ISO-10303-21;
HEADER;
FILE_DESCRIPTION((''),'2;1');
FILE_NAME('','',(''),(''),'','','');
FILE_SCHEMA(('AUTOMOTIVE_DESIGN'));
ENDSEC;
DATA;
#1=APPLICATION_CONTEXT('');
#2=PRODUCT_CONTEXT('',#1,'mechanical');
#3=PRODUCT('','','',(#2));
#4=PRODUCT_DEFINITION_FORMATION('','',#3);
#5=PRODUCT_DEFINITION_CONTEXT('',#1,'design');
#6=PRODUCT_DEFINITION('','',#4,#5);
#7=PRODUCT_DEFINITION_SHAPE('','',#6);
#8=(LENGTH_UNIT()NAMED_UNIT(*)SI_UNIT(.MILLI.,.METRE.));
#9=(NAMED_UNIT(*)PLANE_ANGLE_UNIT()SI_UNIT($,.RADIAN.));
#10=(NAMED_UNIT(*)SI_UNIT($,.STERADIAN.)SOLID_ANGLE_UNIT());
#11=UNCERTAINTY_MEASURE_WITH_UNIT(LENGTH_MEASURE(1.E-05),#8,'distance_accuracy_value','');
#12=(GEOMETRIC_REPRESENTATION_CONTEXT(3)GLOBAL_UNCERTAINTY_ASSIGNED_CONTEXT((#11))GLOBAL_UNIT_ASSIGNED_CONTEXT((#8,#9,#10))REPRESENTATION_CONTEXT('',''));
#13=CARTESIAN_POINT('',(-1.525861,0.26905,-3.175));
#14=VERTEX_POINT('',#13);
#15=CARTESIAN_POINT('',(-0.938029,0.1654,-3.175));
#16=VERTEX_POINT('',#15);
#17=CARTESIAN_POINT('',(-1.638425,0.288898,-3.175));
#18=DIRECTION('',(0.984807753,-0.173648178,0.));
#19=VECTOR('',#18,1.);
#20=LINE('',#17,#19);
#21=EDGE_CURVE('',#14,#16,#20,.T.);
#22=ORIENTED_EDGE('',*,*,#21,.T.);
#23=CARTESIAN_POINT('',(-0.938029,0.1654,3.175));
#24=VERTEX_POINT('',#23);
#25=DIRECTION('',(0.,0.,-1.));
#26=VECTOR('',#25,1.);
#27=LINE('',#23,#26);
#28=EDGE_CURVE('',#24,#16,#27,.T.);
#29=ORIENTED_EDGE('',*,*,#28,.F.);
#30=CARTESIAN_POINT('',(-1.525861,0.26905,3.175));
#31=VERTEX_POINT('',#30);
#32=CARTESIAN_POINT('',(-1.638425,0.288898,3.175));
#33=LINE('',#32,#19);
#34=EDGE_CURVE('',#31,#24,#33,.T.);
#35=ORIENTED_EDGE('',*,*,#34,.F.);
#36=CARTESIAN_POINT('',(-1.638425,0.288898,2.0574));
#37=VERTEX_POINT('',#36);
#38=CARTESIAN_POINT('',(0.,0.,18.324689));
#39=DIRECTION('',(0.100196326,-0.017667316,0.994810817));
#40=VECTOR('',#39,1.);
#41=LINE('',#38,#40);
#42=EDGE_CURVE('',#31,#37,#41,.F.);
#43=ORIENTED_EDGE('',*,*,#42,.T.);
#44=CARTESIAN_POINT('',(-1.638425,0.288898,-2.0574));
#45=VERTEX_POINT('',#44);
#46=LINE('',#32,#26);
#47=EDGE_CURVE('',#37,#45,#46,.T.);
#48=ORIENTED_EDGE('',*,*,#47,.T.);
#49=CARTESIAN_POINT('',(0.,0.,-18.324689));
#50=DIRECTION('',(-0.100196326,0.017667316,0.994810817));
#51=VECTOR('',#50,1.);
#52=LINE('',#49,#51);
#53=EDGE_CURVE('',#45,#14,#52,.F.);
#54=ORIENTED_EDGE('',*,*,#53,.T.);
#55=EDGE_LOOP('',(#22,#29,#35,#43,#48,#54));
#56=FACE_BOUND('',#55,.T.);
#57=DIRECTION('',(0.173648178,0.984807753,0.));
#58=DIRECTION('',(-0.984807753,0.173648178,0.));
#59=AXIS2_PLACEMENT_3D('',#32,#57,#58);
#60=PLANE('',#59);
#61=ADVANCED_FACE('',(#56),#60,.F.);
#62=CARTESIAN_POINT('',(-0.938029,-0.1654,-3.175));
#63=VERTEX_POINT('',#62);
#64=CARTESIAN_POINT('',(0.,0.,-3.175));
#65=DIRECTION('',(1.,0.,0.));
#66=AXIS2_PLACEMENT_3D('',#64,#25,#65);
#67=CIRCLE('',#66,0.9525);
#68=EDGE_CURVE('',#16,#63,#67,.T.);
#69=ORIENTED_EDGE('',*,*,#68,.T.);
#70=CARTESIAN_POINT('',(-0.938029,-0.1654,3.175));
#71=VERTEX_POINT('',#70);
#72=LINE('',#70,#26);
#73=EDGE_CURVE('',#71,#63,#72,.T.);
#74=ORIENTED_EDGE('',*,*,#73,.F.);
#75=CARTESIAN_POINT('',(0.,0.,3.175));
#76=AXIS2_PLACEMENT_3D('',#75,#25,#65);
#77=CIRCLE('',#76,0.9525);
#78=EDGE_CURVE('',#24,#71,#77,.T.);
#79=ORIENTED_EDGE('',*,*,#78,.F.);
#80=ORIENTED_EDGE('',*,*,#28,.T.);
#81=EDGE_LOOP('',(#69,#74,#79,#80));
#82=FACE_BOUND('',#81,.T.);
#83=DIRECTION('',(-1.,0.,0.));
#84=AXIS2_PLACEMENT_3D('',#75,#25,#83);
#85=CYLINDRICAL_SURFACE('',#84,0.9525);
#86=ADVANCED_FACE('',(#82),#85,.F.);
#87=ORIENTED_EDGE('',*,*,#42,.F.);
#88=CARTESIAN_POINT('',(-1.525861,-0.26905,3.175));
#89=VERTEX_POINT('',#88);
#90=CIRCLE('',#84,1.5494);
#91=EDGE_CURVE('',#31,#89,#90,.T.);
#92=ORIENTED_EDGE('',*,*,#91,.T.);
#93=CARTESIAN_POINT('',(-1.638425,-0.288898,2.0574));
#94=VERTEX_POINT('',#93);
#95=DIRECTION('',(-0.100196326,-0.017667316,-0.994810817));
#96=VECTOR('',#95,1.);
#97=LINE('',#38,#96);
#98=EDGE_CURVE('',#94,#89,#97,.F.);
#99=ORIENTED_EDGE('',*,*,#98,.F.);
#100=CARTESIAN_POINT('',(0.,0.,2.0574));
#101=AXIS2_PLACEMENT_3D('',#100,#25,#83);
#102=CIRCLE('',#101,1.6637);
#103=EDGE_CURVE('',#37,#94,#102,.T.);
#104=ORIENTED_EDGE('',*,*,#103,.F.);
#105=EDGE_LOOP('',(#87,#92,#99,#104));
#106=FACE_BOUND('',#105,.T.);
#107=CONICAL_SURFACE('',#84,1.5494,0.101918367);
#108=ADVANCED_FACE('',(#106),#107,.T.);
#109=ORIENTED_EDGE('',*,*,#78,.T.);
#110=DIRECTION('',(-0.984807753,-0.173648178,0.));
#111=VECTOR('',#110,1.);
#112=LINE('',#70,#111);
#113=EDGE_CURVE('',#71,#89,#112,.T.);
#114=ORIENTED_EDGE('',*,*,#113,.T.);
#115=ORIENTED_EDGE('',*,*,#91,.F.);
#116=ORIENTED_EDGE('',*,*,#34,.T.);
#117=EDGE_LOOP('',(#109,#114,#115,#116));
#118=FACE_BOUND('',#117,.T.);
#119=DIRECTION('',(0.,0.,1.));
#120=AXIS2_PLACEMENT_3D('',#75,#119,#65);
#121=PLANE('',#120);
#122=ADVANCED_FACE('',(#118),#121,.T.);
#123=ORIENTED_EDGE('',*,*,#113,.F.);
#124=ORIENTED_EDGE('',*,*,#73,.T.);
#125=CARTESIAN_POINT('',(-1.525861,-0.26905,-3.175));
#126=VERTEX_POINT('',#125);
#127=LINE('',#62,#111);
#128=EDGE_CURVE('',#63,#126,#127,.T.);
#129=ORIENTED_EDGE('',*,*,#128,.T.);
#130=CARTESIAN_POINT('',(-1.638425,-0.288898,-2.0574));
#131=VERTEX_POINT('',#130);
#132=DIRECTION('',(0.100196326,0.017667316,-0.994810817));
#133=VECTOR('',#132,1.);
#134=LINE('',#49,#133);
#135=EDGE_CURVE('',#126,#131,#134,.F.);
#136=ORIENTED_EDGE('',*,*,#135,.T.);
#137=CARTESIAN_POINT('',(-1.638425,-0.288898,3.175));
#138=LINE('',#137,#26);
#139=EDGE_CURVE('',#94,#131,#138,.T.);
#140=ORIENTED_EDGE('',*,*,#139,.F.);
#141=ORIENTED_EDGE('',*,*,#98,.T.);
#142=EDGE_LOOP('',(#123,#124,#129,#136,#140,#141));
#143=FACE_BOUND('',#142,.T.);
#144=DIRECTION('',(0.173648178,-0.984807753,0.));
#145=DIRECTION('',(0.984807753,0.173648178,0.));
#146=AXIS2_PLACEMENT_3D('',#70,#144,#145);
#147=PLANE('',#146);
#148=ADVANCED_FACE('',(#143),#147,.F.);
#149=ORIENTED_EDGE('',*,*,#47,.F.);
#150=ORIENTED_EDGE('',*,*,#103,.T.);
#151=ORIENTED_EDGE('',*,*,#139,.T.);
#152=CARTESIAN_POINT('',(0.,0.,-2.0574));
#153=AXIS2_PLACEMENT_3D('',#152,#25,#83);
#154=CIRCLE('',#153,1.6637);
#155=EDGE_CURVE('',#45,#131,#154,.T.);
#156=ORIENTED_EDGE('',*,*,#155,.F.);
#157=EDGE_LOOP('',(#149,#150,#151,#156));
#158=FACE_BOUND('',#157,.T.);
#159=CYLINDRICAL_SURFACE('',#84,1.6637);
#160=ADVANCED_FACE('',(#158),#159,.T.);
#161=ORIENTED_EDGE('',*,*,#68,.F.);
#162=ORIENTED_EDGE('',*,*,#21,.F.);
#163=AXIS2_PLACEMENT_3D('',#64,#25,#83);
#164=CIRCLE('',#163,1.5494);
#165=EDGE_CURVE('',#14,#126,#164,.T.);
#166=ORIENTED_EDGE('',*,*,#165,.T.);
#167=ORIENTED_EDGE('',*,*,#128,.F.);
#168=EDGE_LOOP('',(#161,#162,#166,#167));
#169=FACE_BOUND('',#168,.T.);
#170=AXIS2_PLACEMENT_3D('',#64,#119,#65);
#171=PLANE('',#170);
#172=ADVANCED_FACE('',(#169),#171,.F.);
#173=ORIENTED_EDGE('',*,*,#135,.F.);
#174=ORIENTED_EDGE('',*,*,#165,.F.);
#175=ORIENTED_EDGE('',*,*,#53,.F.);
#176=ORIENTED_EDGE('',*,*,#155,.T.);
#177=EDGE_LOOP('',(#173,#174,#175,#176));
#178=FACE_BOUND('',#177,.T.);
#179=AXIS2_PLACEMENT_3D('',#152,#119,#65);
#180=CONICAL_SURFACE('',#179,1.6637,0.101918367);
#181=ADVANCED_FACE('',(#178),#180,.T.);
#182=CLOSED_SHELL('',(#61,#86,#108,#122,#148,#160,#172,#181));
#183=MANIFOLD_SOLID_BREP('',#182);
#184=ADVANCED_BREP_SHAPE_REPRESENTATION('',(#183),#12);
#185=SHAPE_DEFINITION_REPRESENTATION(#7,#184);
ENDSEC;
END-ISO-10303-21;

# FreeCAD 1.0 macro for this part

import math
import FreeCAD as App
import Part
import Sketcher

V = App.Vector
Q = App.Units.Quantity

doc = App.newDocument("Part")
params = doc.addObject("Spreadsheet::Sheet", "Params")
for row, (alias, value) in enumerate([
    ("pad1_length", "0.25 in"),
    ("sketch2_height", "0.044 in"),
    ("groove_angle", "360 deg"),
], start=1):
    params.set(f"A{row}", alias)
    params.set(f"B{row}", "=" + value)
    params.setAlias(f"B{row}", alias)

body = doc.addObject("PartDesign::Body", "Body")

# Sketch on XY plane
sketch1 = doc.addObject("Sketcher::SketchObject", "Sketch")
body.addObject(sketch1)
sketch1.AttachmentSupport = (doc.XY_Plane, [""])
sketch1.MapMode = "FlatFace"
sketch1.addGeometry([
    Part.LineSegment(V(-1.638425, 0.288898, 0), V(-0.938029, 0.1654, 0)),
    Part.ArcOfCircle(Part.Circle(V(0, 0, 0), V(0, 0, 1), 0.9525), math.radians(-170), math.radians(170)),
    Part.LineSegment(V(-0.938029, -0.1654, 0), V(-1.638425, -0.288898, 0)),
    Part.ArcOfCircle(Part.Circle(V(0, 0, 0), V(0, 0, 1), 1.6637), math.radians(-170), math.radians(170)),
], False)
sketch1.addConstraint([
    Sketcher.Constraint("Coincident", 0, 2, 1, 2),
    Sketcher.Constraint("Coincident", 1, 1, 2, 1),
    Sketcher.Constraint("Coincident", 2, 2, 3, 1),
    Sketcher.Constraint("Coincident", 3, 2, 0, 1),
    Sketcher.Constraint("Coincident", 1, 3, -1, 1),
    Sketcher.Constraint("Coincident", 3, 3, -1, 1),
    Sketcher.Constraint("Vertical", 0, 2, 1, 1),
    Sketcher.Constraint("Vertical", 2, 2, 3, 2),
    Sketcher.Constraint("Angle", 0, Q("-10 deg")),
    Sketcher.Constraint("Radius", 1, Q("0.0375 in")),
    Sketcher.Constraint("Radius", 3, Q("0.0655 in")),
    Sketcher.Constraint("DistanceY", -1, 1, 0, 2, Q("0.1654 mm")),
])
pad1 = doc.addObject("PartDesign::Pad", "Pad")
body.addObject(pad1)
pad1.Profile = sketch1
pad1.setExpression("Length", "Params.pad1_length")
pad1.Midplane = True

# Sketch on YZ plane
sketch2 = doc.addObject("Sketcher::SketchObject", "Sketch001")
body.addObject(sketch2)
sketch2.AttachmentSupport = (doc.YZ_Plane, [""])
sketch2.MapMode = "FlatFace"
sketch2.addGeometry([
    Part.LineSegment(V(1.5494, -3.175, 0), V(1.6637, -3.175, 0)),  # 0
    Part.LineSegment(V(1.6637, -3.175, 0), V(1.6637, -2.0574, 0)),  # 1
    Part.LineSegment(V(1.6637, -2.0574, 0), V(1.5494, -3.175, 0)),  # 2
    Part.LineSegment(V(1.6637, 2.0574, 0), V(1.6637, 3.175, 0)),  # 3
    Part.LineSegment(V(1.6637, 3.175, 0), V(1.5494, 3.175, 0)),  # 4
    Part.LineSegment(V(1.5494, 3.175, 0), V(1.6637, 2.0574, 0)),  # 5
], False)
sketch2.addConstraint([
    Sketcher.Constraint("Coincident", 0, 2, 1, 1),
    Sketcher.Constraint("Coincident", 1, 2, 2, 1),
    Sketcher.Constraint("Coincident", 2, 2, 0, 1),
    Sketcher.Constraint("Coincident", 3, 2, 4, 1),
    Sketcher.Constraint("Coincident", 4, 2, 5, 1),
    Sketcher.Constraint("Coincident", 5, 2, 3, 1),
    Sketcher.Constraint("Horizontal", 0),
    Sketcher.Constraint("Vertical", 1),
    Sketcher.Constraint("Vertical", 3),
    Sketcher.Constraint("Horizontal", 4),
    Sketcher.Constraint("Symmetric", 0, 2, 3, 2, -1),
    Sketcher.Constraint("Vertical", 2, 2, 4, 2),
    Sketcher.Constraint("Equal", 1, 3),
    Sketcher.Constraint("DistanceY", 1, 1, 1, 2, Q("0.044 in")),
    Sketcher.Constraint("DistanceY", 0, 2, 3, 2, Q("0.25 in")),
    Sketcher.Constraint("DistanceX", 0, 1, 0, 2, Q("0.0045 in")),
    Sketcher.Constraint("DistanceX", -1, 1, 2, 2, Q("0.061 in")),
])
sketch2.setExpression("Constraints[13]", "Params.sketch2_height")
groove = doc.addObject("PartDesign::Groove", "Groove")
body.addObject(groove)
groove.Profile = sketch2
groove.ReferenceAxis = (sketch2, ["V_Axis"])
groove.setExpression("Angle", "Params.groove_angle")

doc.recompute()
